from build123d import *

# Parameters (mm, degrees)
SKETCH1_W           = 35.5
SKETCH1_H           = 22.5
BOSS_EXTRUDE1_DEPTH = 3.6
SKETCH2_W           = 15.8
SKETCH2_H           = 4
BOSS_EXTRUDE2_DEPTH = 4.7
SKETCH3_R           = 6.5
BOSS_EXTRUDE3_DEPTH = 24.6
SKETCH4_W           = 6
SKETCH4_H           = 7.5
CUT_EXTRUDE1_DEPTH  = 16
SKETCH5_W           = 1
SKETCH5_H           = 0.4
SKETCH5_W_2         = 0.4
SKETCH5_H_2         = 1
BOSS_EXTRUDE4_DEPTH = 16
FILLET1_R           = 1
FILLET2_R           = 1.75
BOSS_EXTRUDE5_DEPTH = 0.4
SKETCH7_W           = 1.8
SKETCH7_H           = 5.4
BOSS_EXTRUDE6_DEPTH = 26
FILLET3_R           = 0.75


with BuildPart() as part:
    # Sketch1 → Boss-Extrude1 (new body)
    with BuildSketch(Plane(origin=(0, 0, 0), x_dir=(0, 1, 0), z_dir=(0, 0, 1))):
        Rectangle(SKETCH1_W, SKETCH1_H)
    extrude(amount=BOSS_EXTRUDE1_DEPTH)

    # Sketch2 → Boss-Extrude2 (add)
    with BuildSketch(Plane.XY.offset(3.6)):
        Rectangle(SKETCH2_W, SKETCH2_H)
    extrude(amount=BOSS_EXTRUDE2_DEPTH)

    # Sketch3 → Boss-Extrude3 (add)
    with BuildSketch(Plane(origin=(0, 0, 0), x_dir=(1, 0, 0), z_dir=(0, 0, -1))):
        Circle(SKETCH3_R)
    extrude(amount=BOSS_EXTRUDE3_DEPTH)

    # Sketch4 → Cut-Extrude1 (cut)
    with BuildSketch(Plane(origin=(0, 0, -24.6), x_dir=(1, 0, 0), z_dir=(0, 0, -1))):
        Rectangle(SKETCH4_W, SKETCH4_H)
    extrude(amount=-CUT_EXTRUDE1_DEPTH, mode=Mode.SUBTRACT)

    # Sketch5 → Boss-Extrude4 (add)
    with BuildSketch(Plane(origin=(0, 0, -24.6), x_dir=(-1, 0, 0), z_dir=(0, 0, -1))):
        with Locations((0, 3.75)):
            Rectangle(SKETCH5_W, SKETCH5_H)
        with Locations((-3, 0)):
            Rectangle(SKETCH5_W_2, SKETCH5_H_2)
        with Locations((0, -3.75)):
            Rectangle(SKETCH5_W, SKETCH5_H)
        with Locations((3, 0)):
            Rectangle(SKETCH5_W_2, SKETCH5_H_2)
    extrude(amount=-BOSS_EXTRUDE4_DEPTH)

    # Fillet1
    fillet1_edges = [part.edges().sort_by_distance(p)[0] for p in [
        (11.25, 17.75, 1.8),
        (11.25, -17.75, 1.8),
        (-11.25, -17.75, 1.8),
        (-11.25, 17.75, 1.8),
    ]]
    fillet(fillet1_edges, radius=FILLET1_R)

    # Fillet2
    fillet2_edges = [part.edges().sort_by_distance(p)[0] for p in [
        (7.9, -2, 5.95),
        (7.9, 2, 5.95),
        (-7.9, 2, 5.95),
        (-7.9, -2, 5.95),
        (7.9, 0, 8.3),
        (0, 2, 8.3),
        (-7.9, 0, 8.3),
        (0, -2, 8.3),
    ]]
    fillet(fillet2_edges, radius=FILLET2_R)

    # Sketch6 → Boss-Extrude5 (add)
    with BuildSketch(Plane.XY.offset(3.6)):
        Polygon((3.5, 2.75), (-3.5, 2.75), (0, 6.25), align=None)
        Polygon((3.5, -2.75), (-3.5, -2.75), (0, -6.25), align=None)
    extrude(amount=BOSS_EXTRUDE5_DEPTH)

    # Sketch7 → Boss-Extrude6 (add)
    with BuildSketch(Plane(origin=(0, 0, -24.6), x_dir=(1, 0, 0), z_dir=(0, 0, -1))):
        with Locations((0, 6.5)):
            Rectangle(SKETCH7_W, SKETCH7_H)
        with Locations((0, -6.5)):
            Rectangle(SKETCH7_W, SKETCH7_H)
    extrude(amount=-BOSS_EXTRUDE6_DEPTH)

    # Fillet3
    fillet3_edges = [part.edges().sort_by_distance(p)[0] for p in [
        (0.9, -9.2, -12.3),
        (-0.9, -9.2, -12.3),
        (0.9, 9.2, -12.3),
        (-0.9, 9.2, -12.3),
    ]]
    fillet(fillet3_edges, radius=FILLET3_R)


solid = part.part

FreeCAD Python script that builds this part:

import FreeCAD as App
import Part
import Sketcher

V = App.Vector


def edges_at(feature, points):
    """Names of the edges that pass closest to the given points."""
    edges = feature.Shape.Edges
    near = lambda p: min(range(len(edges)), key=lambda i: edges[i].distToShape(Part.Vertex(*p))[0])
    return sorted({f"Edge{near(p) + 1}" for p in points})

doc = App.newDocument("Part")
body = doc.addObject("PartDesign::Body", "Body")

sketch1 = body.newObject("Sketcher::SketchObject", "Sketch")
sketch1.AttachmentSupport = (doc.getObject("XY_Plane"), [""])
sketch1.MapMode = "FlatFace"
sketch1.addGeometry(Part.LineSegment(V(-11, -18, 0), V(11, -18, 0)), False)
sketch1.addGeometry(Part.LineSegment(V(11, -18, 0), V(11, 18, 0)), False)
sketch1.addGeometry(Part.LineSegment(V(11, 18, 0), V(-11, 18, 0)), False)
sketch1.addGeometry(Part.LineSegment(V(-11, 18, 0), V(-11, -18, 0)), False)
sketch1.addConstraint(Sketcher.Constraint("Coincident", 0, 2, 1, 1))
sketch1.addConstraint(Sketcher.Constraint("Coincident", 1, 2, 2, 1))
sketch1.addConstraint(Sketcher.Constraint("Coincident", 2, 2, 3, 1))
sketch1.addConstraint(Sketcher.Constraint("Coincident", 3, 2, 0, 1))
sketch1.addConstraint(Sketcher.Constraint("Horizontal", 0))
sketch1.addConstraint(Sketcher.Constraint("Vertical", 1))
sketch1.addConstraint(Sketcher.Constraint("Horizontal", 2))
sketch1.addConstraint(Sketcher.Constraint("Vertical", 3))
sketch1.addConstraint(Sketcher.Constraint("Symmetric", 0, 2, 2, 2, -1, 1))
sketch1.addConstraint(Sketcher.Constraint("DistanceX", 0, 1, 0, 2, 22.5))
sketch1.addConstraint(Sketcher.Constraint("DistanceY", 1, 1, 1, 2, 35.5))
pad1 = body.newObject("PartDesign::Pad", "Pad")
pad1.Profile = sketch1
pad1.Length = 3.6

sketch2 = body.newObject("Sketcher::SketchObject", "Sketch001")
sketch2.AttachmentSupport = (doc.getObject("XY_Plane"), [""])
sketch2.MapMode = "FlatFace"
sketch2.AttachmentOffset = App.Placement(V(0, 0, 3.6), App.Rotation())
sketch2.addGeometry(Part.LineSegment(V(-7.9, 2, 0), V(-7.9, -2, 0)), False)
sketch2.addGeometry(Part.LineSegment(V(-7.9, -2, 0), V(7.9, -2, 0)), False)
sketch2.addGeometry(Part.LineSegment(V(7.9, -2, 0), V(7.9, 2, 0)), False)
sketch2.addGeometry(Part.LineSegment(V(7.9, 2, 0), V(-7.9, 2, 0)), False)
sketch2.addConstraint(Sketcher.Constraint("Coincident", 0, 2, 1, 1))
sketch2.addConstraint(Sketcher.Constraint("Coincident", 1, 2, 2, 1))
sketch2.addConstraint(Sketcher.Constraint("Coincident", 2, 2, 3, 1))
sketch2.addConstraint(Sketcher.Constraint("Coincident", 3, 2, 0, 1))
sketch2.addConstraint(Sketcher.Constraint("Vertical", 0))
sketch2.addConstraint(Sketcher.Constraint("Horizontal", 1))
sketch2.addConstraint(Sketcher.Constraint("Vertical", 2))
sketch2.addConstraint(Sketcher.Constraint("Horizontal", 3))
sketch2.addConstraint(Sketcher.Constraint("Symmetric", 0, 2, 2, 2, -1, 1))
sketch2.addConstraint(Sketcher.Constraint("DistanceY", 0, 2, 0, 1, 4.0))
sketch2.addConstraint(Sketcher.Constraint("DistanceX", 1, 1, 1, 2, 15.8))
pad2 = body.newObject("PartDesign::Pad", "Pad001")
pad2.Profile = sketch2
pad2.Length = 4.7

sketch3 = body.newObject("Sketcher::SketchObject", "Sketch002")
sketch3.AttachmentSupport = (doc.getObject("XY_Plane"), [""])
sketch3.MapMode = "FlatFace"
sketch3.addGeometry(Part.Circle(V(0, 0, 0), V(0, 0, 1), 6), False)
sketch3.addConstraint(Sketcher.Constraint("Coincident", 0, 3, -1, 1))
sketch3.addConstraint(Sketcher.Constraint("Diameter", 0, 13.0))
pad3 = body.newObject("PartDesign::Pad", "Pad002")
pad3.Profile = sketch3
pad3.Length = 24.6
pad3.Reversed = True

sketch4 = body.newObject("Sketcher::SketchObject", "Sketch003")
sketch4.AttachmentSupport = (doc.getObject("XY_Plane"), [""])
sketch4.MapMode = "FlatFace"
sketch4.AttachmentOffset = App.Placement(V(0, 0, -24.6), App.Rotation())
sketch4.addGeometry(Part.LineSegment(V(-3, -4, 0), V(-3, 4, 0)), False)
sketch4.addGeometry(Part.LineSegment(V(-3, 4, 0), V(3, 4, 0)), False)
sketch4.addGeometry(Part.LineSegment(V(3, 4, 0), V(3, -4, 0)), False)
sketch4.addGeometry(Part.LineSegment(V(3, -4, 0), V(-3, -4, 0)), False)
sketch4.addConstraint(Sketcher.Constraint("Coincident", 0, 2, 1, 1))
sketch4.addConstraint(Sketcher.Constraint("Coincident", 1, 2, 2, 1))
sketch4.addConstraint(Sketcher.Constraint("Coincident", 2, 2, 3, 1))
sketch4.addConstraint(Sketcher.Constraint("Coincident", 3, 2, 0, 1))
sketch4.addConstraint(Sketcher.Constraint("Vertical", 0))
sketch4.addConstraint(Sketcher.Constraint("Horizontal", 1))
sketch4.addConstraint(Sketcher.Constraint("Vertical", 2))
sketch4.addConstraint(Sketcher.Constraint("Horizontal", 3))
sketch4.addConstraint(Sketcher.Constraint("Symmetric", 0, 2, 2, 2, -1, 1))
sketch4.addConstraint(Sketcher.Constraint("DistanceX", 1, 1, 1, 2, 6.0))
sketch4.addConstraint(Sketcher.Constraint("DistanceY", 0, 1, 0, 2, 7.5))
pocket1 = body.newObject("PartDesign::Pocket", "Pocket")
pocket1.Profile = sketch4
pocket1.Length = 16
pocket1.Reversed = True

sketch5 = body.newObject("Sketcher::SketchObject", "Sketch004")
sketch5.AttachmentSupport = (doc.getObject("XY_Plane"), [""])
sketch5.MapMode = "FlatFace"
sketch5.AttachmentOffset = App.Placement(V(0, 0, -24.6), App.Rotation())
sketch5.addGeometry(Part.LineSegment(V(0.5, 3.95, 0), V(0.5, 3.55, 0)), False)
sketch5.addGeometry(Part.LineSegment(V(0.5, 3.55, 0), V(-0.5, 3.55, 0)), False)
sketch5.addGeometry(Part.LineSegment(V(-0.5, 3.55, 0), V(-0.5, 3.95, 0)), False)
sketch5.addGeometry(Part.LineSegment(V(-0.5, 3.95, 0), V(0.5, 3.95, 0)), False)
sketch5.addGeometry(Part.LineSegment(V(3.2, 0.5, 0), V(3.2, -0.5, 0)), False)
sketch5.addGeometry(Part.LineSegment(V(3.2, -0.5, 0), V(2.8, -0.5, 0)), False)
sketch5.addGeometry(Part.LineSegment(V(2.8, -0.5, 0), V(2.8, 0.5, 0)), False)
sketch5.addGeometry(Part.LineSegment(V(2.8, 0.5, 0), V(3.2, 0.5, 0)), False)
sketch5.addGeometry(Part.LineSegment(V(0.5, -3.55, 0), V(0.5, -3.95, 0)), False)
sketch5.addGeometry(Part.LineSegment(V(0.5, -3.95, 0), V(-0.5, -3.95, 0)), False)
sketch5.addGeometry(Part.LineSegment(V(-0.5, -3.95, 0), V(-0.5, -3.55, 0)), False)
sketch5.addGeometry(Part.LineSegment(V(-0.5, -3.55, 0), V(0.5, -3.55, 0)), False)
sketch5.addGeometry(Part.LineSegment(V(-2.8, 0.5, 0), V(-2.8, -0.5, 0)), False)
sketch5.addGeometry(Part.LineSegment(V(-2.8, -0.5, 0), V(-3.2, -0.5, 0)), False)
sketch5.addGeometry(Part.LineSegment(V(-3.2, -0.5, 0), V(-3.2, 0.5, 0)), False)
sketch5.addGeometry(Part.LineSegment(V(-3.2, 0.5, 0), V(-2.8, 0.5, 0)), False)
sketch5.addConstraint(Sketcher.Constraint("Coincident", 0, 2, 1, 1))
sketch5.addConstraint(Sketcher.Constraint("Coincident", 1, 2, 2, 1))
sketch5.addConstraint(Sketcher.Constraint("Coincident", 2, 2, 3, 1))
sketch5.addConstraint(Sketcher.Constraint("Coincident", 3, 2, 0, 1))
sketch5.addConstraint(Sketcher.Constraint("Coincident", 4, 2, 5, 1))
sketch5.addConstraint(Sketcher.Constraint("Coincident", 5, 2, 6, 1))
sketch5.addConstraint(Sketcher.Constraint("Coincident", 6, 2, 7, 1))
sketch5.addConstraint(Sketcher.Constraint("Coincident", 7, 2, 4, 1))
sketch5.addConstraint(Sketcher.Constraint("Coincident", 8, 2, 9, 1))
sketch5.addConstraint(Sketcher.Constraint("Coincident", 9, 2, 10, 1))
sketch5.addConstraint(Sketcher.Constraint("Coincident", 10, 2, 11, 1))
sketch5.addConstraint(Sketcher.Constraint("Coincident", 11, 2, 8, 1))
sketch5.addConstraint(Sketcher.Constraint("Coincident", 12, 2, 13, 1))
sketch5.addConstraint(Sketcher.Constraint("Coincident", 13, 2, 14, 1))
sketch5.addConstraint(Sketcher.Constraint("Coincident", 14, 2, 15, 1))
sketch5.addConstraint(Sketcher.Constraint("Coincident", 15, 2, 12, 1))
sketch5.addConstraint(Sketcher.Constraint("Vertical", 0))
sketch5.addConstraint(Sketcher.Constraint("Horizontal", 1))
sketch5.addConstraint(Sketcher.Constraint("Vertical", 2))
sketch5.addConstraint(Sketcher.Constraint("Horizontal", 3))
sketch5.addConstraint(Sketcher.Constraint("Vertical", 4))
sketch5.addConstraint(Sketcher.Constraint("Horizontal", 5))
sketch5.addConstraint(Sketcher.Constraint("Vertical", 6))
sketch5.addConstraint(Sketcher.Constraint("Horizontal", 7))
sketch5.addConstraint(Sketcher.Constraint("Vertical", 8))
sketch5.addConstraint(Sketcher.Constraint("Horizontal", 9))
sketch5.addConstraint(Sketcher.Constraint("Vertical", 10))
sketch5.addConstraint(Sketcher.Constraint("Horizontal", 11))
sketch5.addConstraint(Sketcher.Constraint("Vertical", 12))
sketch5.addConstraint(Sketcher.Constraint("Horizontal", 13))
sketch5.addConstraint(Sketcher.Constraint("Vertical", 14))
sketch5.addConstraint(Sketcher.Constraint("Horizontal", 15))
sketch5.addConstraint(Sketcher.Constraint("Symmetric", 2, 2, 8, 2, -1, 1))
sketch5.addConstraint(Sketcher.Constraint("Symmetric", 0, 2, 10, 2, -1, 1))
sketch5.addConstraint(Sketcher.Constraint("Symmetric", 6, 2, 12, 2, -1, 1))
sketch5.addConstraint(Sketcher.Constraint("Symmetric", 4, 2, 14, 2, -1, 1))
sketch5.addConstraint(Sketcher.Constraint("Horizontal", 5, 2, 12, 2))
sketch5.addConstraint(Sketcher.Constraint("Vertical", 3, 2, 8, 2))
sketch5.addConstraint(Sketcher.Constraint("Equal", 15, 0))
sketch5.addConstraint(Sketcher.Constraint("Equal", 11, 4))
sketch5.addConstraint(Sketcher.Constraint("DistanceX", 1, 2, 1, 1, 1.0))
sketch5.addConstraint(Sketcher.Constraint("DistanceX", 5, 2, 5, 1, 0.4))
sketch5.addConstraint(Sketcher.Constraint("DistanceX", -1, 1, 4, 2, 3.2))
sketch5.addConstraint(Sketcher.Constraint("DistanceY", 8, 2, 0, 2, 7.5))
pad4 = body.newObject("PartDesign::Pad", "Pad003")
pad4.Profile = sketch5
pad4.Length = 16
doc.recompute()

fillet = body.newObject("PartDesign::Fillet", "Fillet")
fillet.Base = (pad4, edges_at(pad4, [
    (11.25, 17.75, 1.8),
    (11.25, -17.75, 1.8),
    (-11.25, -17.75, 1.8),
    (-11.25, 17.75, 1.8),
]))
fillet.Radius = 1
doc.recompute()

fillet2 = body.newObject("PartDesign::Fillet", "Fillet001")
fillet2.Base = (fillet, edges_at(fillet, [
    (7.9, -2, 5.95),
    (7.9, 2, 5.95),
    (-7.9, 2, 5.95),
    (-7.9, -2, 5.95),
    (7.9, 0, 8.3),
    (0, 2, 8.3),
    (-7.9, 0, 8.3),
    (0, -2, 8.3),
]))
fillet2.Radius = 1.75

sketch6 = body.newObject("Sketcher::SketchObject", "Sketch005")
sketch6.AttachmentSupport = (doc.getObject("XY_Plane"), [""])
sketch6.MapMode = "FlatFace"
sketch6.AttachmentOffset = App.Placement(V(0, 0, 3.6), App.Rotation())
sketch6.addGeometry(Part.LineSegment(V(-3.5, 2.8, 0), V(3.5, 2.8, 0)), False)
sketch6.addGeometry(Part.LineSegment(V(3.5, 2.8, 0), V(0, 6.2, 0)), False)
sketch6.addGeometry(Part.LineSegment(V(0, 6.2, 0), V(-3.5, 2.8, 0)), False)
sketch6.addGeometry(Part.LineSegment(V(3.5, -2.8, 0), V(-3.5, -2.8, 0)), False)
sketch6.addGeometry(Part.LineSegment(V(-3.5, -2.8, 0), V(0, -6.2, 0)), False)
sketch6.addGeometry(Part.LineSegment(V(0, -6.2, 0), V(3.5, -2.8, 0)), False)
sketch6.addConstraint(Sketcher.Constraint("Coincident", 0, 2, 1, 1))
sketch6.addConstraint(Sketcher.Constraint("Coincident", 1, 2, 2, 1))
sketch6.addConstraint(Sketcher.Constraint("Coincident", 2, 2, 0, 1))
sketch6.addConstraint(Sketcher.Constraint("Coincident", 3, 2, 4, 1))
sketch6.addConstraint(Sketcher.Constraint("Coincident", 4, 2, 5, 1))
sketch6.addConstraint(Sketcher.Constraint("Coincident", 5, 2, 3, 1))
sketch6.addConstraint(Sketcher.Constraint("Horizontal", 0))
sketch6.addConstraint(Sketcher.Constraint("Horizontal", 3))
sketch6.addConstraint(Sketcher.Constraint("Symmetric", 0, 2, 3, 2, -1, 1))
sketch6.addConstraint(Sketcher.Constraint("Symmetric", 1, 2, 4, 2, -1, 1))
sketch6.addConstraint(Sketcher.Constraint("PointOnObject", 1, 2, -2))
sketch6.addConstraint(Sketcher.Constraint("Perpendicular", 1, 2))
sketch6.addConstraint(Sketcher.Constraint("Perpendicular", 4, 5))
sketch6.addConstraint(Sketcher.Constraint("Vertical", 2, 2, 3, 2))
sketch6.addConstraint(Sketcher.Constraint("DistanceX", 0, 1, 0, 2, 7.0))
sketch6.addConstraint(Sketcher.Constraint("DistanceY", 3, 2, 1, 2, 9.0))
pad5 = body.newObject("PartDesign::Pad", "Pad004")
pad5.Profile = sketch6
pad5.Length = 0.4

sketch7 = body.newObject("Sketcher::SketchObject", "Sketch006")
sketch7.AttachmentSupport = (doc.getObject("XY_Plane"), [""])
sketch7.MapMode = "FlatFace"
sketch7.AttachmentOffset = App.Placement(V(0, 0, -24.6), App.Rotation())
sketch7.addGeometry(Part.LineSegment(V(-0.9, -9.2, 0), V(-0.9, -3.8, 0)), False)
sketch7.addGeometry(Part.LineSegment(V(-0.9, -3.8, 0), V(0.9, -3.8, 0)), False)
sketch7.addGeometry(Part.LineSegment(V(0.9, -3.8, 0), V(0.9, -9.2, 0)), False)
sketch7.addGeometry(Part.LineSegment(V(0.9, -9.2, 0), V(-0.9, -9.2, 0)), False)
sketch7.addGeometry(Part.LineSegment(V(-0.9, 3.8, 0), V(-0.9, 9.2, 0)), False)
sketch7.addGeometry(Part.LineSegment(V(-0.9, 9.2, 0), V(0.9, 9.2, 0)), False)
sketch7.addGeometry(Part.LineSegment(V(0.9, 9.2, 0), V(0.9, 3.8, 0)), False)
sketch7.addGeometry(Part.LineSegment(V(0.9, 3.8, 0), V(-0.9, 3.8, 0)), False)
sketch7.addConstraint(Sketcher.Constraint("Coincident", 0, 2, 1, 1))
sketch7.addConstraint(Sketcher.Constraint("Coincident", 1, 2, 2, 1))
sketch7.addConstraint(Sketcher.Constraint("Coincident", 2, 2, 3, 1))
sketch7.addConstraint(Sketcher.Constraint("Coincident", 3, 2, 0, 1))
sketch7.addConstraint(Sketcher.Constraint("Coincident", 4, 2, 5, 1))
sketch7.addConstraint(Sketcher.Constraint("Coincident", 5, 2, 6, 1))
sketch7.addConstraint(Sketcher.Constraint("Coincident", 6, 2, 7, 1))
sketch7.addConstraint(Sketcher.Constraint("Coincident", 7, 2, 4, 1))
sketch7.addConstraint(Sketcher.Constraint("Vertical", 0))
sketch7.addConstraint(Sketcher.Constraint("Horizontal", 1))
sketch7.addConstraint(Sketcher.Constraint("Vertical", 2))
sketch7.addConstraint(Sketcher.Constraint("Horizontal", 3))
sketch7.addConstraint(Sketcher.Constraint("Vertical", 4))
sketch7.addConstraint(Sketcher.Constraint("Horizontal", 5))
sketch7.addConstraint(Sketcher.Constraint("Vertical", 6))
sketch7.addConstraint(Sketcher.Constraint("Horizontal", 7))
sketch7.addConstraint(Sketcher.Constraint("Symmetric", 2, 2, 4, 2, -1, 1))
sketch7.addConstraint(Sketcher.Constraint("Symmetric", 0, 2, 6, 2, -1, 1))
sketch7.addConstraint(Sketcher.Constraint("Vertical", 3, 2, 4, 2))
sketch7.addConstraint(Sketcher.Constraint("DistanceX", 1, 1, 1, 2, 1.8))
sketch7.addConstraint(Sketcher.Constraint("DistanceY", 0, 1, 0, 2, 5.4))
sketch7.addConstraint(Sketcher.Constraint("DistanceY", 0, 2, 4, 2, 13.0))
pad6 = body.newObject("PartDesign::Pad", "Pad005")
pad6.Profile = sketch7
pad6.Length = 26
doc.recompute()

fillet3 = body.newObject("PartDesign::Fillet", "Fillet002")
fillet3.Base = (pad6, edges_at(pad6, [
    (0.9, -9.2, -12.3),
    (-0.9, -9.2, -12.3),
    (0.9, 9.2, -12.3),
    (-0.9, 9.2, -12.3),
]))
fillet3.Radius = 0.75

doc.recompute()
